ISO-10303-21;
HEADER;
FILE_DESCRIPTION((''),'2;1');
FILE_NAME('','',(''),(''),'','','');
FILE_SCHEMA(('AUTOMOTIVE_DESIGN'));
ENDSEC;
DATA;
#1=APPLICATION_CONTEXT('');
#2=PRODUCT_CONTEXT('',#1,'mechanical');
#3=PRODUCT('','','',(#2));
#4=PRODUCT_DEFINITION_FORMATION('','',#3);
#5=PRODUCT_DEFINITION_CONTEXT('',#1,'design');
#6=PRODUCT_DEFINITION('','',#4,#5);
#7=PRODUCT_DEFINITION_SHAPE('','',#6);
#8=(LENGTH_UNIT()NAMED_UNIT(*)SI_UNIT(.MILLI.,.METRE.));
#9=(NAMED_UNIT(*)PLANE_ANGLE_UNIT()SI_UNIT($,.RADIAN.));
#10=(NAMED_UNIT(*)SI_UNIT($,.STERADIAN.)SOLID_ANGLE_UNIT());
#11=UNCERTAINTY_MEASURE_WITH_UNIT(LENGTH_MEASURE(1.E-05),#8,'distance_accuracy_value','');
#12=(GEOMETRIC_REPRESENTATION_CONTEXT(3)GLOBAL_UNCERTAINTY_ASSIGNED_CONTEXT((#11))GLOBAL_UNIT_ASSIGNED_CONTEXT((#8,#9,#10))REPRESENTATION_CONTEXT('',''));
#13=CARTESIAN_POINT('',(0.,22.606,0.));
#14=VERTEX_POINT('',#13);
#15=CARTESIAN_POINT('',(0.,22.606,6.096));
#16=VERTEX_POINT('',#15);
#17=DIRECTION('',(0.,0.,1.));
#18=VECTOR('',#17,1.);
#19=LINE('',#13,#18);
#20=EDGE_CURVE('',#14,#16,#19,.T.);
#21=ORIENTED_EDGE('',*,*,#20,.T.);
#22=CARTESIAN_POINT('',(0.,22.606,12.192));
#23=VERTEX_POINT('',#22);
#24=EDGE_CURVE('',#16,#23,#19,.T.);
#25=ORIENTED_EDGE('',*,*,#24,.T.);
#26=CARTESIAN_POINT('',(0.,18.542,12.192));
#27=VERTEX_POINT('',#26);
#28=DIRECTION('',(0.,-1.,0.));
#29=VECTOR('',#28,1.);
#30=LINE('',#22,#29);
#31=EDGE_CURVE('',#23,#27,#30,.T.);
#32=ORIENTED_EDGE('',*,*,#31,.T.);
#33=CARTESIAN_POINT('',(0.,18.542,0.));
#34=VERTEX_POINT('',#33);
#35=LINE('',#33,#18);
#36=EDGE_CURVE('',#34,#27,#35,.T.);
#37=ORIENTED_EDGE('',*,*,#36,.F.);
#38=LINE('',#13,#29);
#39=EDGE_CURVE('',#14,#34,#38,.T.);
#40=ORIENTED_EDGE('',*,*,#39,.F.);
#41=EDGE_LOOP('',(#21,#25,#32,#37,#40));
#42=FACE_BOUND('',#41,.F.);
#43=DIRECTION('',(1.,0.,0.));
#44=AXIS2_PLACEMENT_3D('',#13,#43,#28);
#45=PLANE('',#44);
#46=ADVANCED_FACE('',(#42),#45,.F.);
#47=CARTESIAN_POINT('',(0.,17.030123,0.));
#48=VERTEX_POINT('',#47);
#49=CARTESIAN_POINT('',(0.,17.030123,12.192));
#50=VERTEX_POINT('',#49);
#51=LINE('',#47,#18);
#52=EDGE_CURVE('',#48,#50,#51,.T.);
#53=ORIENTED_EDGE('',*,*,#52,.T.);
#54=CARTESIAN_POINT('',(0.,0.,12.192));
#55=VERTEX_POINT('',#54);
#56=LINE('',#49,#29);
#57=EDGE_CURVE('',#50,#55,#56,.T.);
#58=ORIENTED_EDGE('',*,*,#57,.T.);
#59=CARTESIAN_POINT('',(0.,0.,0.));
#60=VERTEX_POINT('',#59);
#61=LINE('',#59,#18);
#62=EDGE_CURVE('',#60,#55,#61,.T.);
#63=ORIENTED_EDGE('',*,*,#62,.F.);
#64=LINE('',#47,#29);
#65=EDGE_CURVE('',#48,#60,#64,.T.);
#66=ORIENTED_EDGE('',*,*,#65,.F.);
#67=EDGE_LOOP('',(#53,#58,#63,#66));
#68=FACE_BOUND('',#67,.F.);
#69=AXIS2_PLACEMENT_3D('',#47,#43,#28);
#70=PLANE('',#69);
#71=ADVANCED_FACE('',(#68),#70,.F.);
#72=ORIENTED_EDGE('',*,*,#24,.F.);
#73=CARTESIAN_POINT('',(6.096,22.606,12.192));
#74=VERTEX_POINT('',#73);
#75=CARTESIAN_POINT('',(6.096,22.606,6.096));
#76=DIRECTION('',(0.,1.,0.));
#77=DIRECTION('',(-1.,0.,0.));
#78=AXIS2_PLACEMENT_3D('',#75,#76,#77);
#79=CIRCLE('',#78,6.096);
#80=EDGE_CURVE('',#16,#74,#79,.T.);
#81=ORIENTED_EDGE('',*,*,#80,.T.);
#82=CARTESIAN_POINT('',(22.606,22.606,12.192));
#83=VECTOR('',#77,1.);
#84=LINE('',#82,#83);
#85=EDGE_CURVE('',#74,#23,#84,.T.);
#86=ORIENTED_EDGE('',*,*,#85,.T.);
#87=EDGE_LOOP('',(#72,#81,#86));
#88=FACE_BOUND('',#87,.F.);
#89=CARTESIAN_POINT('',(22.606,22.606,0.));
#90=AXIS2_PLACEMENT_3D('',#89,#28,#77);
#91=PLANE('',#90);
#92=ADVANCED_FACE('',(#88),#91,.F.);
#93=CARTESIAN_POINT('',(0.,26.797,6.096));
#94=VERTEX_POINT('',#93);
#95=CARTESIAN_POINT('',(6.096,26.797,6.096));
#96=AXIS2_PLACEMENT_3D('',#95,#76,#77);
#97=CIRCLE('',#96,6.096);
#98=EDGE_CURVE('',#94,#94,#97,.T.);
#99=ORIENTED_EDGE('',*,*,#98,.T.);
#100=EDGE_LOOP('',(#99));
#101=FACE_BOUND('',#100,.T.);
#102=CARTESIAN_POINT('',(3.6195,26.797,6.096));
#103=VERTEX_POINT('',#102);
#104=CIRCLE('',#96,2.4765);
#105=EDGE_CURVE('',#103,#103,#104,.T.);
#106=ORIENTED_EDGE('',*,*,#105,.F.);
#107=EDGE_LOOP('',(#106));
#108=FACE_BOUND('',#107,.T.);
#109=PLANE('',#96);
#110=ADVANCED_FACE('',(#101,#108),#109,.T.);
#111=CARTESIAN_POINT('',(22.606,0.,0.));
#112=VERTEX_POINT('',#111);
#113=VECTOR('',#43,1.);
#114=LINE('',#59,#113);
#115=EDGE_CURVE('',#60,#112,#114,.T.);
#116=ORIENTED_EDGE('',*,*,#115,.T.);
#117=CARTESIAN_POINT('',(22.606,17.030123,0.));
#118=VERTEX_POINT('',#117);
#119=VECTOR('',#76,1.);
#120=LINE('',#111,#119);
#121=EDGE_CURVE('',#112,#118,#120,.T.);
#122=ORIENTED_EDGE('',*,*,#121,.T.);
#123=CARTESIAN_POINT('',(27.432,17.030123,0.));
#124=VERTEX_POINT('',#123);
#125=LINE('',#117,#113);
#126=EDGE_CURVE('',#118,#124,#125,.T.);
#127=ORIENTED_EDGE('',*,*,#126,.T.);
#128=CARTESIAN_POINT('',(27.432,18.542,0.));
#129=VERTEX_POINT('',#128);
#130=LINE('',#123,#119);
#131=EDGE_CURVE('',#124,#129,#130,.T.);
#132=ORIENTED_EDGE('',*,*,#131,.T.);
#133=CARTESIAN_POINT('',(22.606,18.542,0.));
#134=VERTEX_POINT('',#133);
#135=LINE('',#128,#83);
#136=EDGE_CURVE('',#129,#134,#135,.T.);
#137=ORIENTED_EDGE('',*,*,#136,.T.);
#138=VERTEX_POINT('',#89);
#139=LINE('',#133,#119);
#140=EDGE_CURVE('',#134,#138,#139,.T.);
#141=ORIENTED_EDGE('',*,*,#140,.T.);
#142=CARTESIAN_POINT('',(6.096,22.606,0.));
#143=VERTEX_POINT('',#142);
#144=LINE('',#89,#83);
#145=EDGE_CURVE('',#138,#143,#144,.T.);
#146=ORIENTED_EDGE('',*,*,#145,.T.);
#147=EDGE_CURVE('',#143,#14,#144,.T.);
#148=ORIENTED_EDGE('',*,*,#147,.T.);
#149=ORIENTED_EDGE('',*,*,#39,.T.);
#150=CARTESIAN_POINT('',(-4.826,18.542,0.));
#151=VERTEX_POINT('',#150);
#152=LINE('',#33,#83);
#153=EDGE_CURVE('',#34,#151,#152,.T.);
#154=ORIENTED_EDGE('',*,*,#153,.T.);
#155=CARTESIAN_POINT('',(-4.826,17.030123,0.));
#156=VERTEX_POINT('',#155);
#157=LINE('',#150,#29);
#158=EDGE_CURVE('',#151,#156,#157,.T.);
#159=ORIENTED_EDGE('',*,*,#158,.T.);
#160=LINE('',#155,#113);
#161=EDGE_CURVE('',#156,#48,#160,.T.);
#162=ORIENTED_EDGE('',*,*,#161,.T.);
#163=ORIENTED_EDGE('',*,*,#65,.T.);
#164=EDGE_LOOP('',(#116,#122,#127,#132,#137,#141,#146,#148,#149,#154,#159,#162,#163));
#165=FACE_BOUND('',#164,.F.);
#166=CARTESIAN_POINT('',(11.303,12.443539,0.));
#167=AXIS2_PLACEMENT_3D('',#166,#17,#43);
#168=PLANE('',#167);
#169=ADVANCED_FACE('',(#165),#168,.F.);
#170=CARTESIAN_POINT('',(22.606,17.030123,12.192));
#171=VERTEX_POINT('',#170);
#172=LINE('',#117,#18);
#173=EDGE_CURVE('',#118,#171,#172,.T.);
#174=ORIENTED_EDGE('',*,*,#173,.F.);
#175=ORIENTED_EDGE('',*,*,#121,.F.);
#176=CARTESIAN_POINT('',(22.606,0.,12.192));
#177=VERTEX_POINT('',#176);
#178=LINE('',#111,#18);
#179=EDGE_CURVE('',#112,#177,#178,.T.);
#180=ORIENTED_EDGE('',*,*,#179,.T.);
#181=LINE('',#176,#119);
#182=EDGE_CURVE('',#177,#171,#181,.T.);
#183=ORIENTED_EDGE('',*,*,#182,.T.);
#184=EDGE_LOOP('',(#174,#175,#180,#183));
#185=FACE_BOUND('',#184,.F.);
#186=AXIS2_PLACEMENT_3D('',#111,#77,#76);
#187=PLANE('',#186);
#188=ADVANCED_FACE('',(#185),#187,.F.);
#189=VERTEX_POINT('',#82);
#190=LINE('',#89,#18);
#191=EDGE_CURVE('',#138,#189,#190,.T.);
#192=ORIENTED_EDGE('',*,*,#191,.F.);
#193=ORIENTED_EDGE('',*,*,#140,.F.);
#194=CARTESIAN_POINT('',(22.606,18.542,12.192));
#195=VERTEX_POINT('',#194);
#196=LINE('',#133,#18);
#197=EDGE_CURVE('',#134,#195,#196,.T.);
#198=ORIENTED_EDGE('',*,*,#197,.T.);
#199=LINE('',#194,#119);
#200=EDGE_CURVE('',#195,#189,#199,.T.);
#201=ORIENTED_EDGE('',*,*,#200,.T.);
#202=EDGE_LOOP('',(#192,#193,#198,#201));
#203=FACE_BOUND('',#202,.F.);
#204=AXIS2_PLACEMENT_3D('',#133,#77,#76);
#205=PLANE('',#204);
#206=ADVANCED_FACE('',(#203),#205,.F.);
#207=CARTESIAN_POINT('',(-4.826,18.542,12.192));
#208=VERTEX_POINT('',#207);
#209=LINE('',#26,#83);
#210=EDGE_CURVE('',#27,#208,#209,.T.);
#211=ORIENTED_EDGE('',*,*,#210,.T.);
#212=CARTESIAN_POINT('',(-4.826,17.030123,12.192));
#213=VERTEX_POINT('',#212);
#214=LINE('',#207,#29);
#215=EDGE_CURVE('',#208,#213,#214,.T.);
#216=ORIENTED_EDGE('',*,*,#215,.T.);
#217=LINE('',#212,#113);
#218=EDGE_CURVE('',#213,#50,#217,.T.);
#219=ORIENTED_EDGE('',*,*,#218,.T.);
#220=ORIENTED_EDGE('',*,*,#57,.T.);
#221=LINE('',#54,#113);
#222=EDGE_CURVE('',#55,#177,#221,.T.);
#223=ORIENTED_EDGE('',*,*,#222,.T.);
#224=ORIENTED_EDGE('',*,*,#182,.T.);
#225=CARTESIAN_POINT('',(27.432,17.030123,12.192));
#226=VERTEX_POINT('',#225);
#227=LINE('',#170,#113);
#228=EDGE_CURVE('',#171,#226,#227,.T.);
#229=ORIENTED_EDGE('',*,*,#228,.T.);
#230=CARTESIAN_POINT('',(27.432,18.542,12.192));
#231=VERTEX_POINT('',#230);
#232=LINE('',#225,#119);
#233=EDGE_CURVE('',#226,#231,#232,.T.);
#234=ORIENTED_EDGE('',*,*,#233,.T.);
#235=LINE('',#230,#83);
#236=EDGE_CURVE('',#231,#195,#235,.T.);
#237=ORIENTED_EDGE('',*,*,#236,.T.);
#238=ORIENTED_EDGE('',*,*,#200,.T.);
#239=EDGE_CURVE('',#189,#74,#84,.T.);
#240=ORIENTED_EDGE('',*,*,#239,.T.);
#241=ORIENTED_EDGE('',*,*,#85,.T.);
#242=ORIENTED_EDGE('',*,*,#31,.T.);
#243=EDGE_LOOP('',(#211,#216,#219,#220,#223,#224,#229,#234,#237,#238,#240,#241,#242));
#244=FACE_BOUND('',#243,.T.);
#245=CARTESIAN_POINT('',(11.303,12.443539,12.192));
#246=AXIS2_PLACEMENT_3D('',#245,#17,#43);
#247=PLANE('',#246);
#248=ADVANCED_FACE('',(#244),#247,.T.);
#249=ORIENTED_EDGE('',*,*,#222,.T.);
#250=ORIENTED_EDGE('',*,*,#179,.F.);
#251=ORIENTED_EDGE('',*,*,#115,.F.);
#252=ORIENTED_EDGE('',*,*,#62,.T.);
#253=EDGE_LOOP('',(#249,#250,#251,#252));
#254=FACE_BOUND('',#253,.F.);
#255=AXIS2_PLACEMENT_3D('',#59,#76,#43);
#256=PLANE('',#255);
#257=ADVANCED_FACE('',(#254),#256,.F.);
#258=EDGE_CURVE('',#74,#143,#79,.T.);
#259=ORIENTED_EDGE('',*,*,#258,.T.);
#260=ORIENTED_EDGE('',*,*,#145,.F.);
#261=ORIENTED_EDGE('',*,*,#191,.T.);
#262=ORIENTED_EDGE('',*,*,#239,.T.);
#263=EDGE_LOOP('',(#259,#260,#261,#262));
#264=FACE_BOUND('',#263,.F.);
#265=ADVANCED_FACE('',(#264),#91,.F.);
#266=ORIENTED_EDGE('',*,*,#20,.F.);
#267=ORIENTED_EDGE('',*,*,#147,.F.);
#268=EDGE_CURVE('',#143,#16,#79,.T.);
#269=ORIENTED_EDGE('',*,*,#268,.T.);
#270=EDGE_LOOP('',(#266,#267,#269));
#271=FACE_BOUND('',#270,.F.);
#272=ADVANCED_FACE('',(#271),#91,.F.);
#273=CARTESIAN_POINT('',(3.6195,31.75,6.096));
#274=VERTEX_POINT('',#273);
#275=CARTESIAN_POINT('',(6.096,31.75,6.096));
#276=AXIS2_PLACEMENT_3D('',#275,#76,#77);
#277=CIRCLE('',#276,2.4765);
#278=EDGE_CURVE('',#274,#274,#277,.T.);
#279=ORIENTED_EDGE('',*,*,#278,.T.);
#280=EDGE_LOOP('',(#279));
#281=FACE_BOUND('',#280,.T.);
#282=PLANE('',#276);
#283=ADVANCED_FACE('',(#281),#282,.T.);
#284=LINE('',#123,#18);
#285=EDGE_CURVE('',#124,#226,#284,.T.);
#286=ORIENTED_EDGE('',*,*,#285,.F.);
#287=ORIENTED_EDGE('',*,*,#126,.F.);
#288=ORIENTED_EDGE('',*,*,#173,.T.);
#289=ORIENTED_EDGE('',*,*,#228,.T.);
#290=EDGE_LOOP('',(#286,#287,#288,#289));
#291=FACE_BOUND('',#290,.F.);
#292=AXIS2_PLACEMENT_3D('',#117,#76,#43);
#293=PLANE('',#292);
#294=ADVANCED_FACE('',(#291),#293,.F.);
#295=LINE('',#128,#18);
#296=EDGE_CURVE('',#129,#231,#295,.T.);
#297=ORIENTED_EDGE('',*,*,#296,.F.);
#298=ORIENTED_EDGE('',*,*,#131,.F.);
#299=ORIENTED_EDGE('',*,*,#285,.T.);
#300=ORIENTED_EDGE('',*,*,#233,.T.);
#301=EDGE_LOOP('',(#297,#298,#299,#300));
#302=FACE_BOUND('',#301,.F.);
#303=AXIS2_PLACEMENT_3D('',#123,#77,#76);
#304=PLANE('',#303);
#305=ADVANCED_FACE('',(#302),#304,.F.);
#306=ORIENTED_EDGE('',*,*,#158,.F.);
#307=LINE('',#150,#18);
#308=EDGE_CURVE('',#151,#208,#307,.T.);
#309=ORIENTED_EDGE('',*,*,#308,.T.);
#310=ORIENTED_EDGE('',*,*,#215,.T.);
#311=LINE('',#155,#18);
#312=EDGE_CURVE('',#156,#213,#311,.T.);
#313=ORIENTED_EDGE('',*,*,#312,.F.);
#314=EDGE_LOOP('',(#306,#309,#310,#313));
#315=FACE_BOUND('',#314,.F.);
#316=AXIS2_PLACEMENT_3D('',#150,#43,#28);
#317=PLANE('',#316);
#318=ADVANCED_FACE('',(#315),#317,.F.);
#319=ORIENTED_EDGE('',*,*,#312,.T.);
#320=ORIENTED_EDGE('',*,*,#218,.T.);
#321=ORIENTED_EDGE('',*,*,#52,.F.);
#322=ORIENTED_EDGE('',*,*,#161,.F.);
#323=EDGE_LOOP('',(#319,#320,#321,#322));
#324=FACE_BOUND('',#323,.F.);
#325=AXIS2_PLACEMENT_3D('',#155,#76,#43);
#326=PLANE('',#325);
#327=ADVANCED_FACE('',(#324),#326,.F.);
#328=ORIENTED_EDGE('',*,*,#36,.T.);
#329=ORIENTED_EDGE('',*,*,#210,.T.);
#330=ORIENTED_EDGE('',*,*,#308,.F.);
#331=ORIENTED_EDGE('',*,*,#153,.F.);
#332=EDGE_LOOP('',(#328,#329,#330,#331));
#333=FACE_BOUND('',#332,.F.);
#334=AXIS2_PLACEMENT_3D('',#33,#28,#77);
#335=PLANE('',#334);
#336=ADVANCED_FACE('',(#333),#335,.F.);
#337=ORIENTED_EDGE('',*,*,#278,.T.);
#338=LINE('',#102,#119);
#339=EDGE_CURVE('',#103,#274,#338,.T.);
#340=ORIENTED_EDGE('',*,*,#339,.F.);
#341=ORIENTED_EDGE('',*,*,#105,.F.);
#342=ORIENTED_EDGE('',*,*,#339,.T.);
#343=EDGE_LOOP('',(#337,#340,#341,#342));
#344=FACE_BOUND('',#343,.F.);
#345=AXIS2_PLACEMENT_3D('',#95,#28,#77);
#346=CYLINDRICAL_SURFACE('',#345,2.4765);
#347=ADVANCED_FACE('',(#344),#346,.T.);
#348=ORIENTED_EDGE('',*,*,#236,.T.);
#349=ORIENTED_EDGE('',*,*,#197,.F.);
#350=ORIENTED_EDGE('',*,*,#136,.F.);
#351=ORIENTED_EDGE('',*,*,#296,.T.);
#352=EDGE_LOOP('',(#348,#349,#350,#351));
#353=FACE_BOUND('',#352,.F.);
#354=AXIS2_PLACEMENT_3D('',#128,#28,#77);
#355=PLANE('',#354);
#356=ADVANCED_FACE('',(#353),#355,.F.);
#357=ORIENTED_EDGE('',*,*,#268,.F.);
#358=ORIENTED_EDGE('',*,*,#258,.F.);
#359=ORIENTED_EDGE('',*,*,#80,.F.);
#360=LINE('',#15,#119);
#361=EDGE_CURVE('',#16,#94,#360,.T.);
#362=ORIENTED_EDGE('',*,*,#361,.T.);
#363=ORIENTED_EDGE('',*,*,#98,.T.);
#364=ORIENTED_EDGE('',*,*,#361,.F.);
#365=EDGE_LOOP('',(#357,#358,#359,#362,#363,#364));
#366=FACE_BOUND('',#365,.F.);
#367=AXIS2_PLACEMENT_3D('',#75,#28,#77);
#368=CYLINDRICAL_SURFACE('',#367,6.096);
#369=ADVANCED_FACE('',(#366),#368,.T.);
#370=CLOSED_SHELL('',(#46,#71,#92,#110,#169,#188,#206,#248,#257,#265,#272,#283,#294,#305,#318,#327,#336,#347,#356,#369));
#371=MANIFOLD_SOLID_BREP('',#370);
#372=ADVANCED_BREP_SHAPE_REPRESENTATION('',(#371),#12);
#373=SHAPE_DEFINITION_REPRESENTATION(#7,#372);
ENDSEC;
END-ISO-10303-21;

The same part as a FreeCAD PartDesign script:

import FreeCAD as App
import Part
import Sketcher

V = App.Vector
Q = App.Units.Quantity

doc = App.newDocument("Part")
body = doc.addObject("PartDesign::Body", "Body")

sketch1 = doc.addObject("Sketcher::SketchObject", "Sketch")
body.addObject(sketch1)
sketch1.AttachmentSupport = (doc.XY_Plane, [""])
sketch1.MapMode = "FlatFace"
sketch1.addGeometry(Part.LineSegment(V(0, 17, 0), V(0, 0, 0)), False)
sketch1.addGeometry(Part.LineSegment(V(0, 0, 0), V(22.6, 0, 0)), False)
sketch1.addGeometry(Part.LineSegment(V(22.6, 0, 0), V(22.6, 17, 0)), False)
sketch1.addGeometry(Part.LineSegment(V(22.6, 17, 0), V(27.4, 17, 0)), False)
sketch1.addGeometry(Part.LineSegment(V(27.4, 17, 0), V(27.4, 18.5, 0)), False)
sketch1.addGeometry(Part.LineSegment(V(27.4, 18.5, 0), V(22.6, 18.5, 0)), False)
sketch1.addGeometry(Part.LineSegment(V(22.6, 18.5, 0), V(22.6, 22.6, 0)), False)
sketch1.addGeometry(Part.LineSegment(V(22.6, 22.6, 0), V(0, 22.6, 0)), False)
sketch1.addGeometry(Part.LineSegment(V(0, 22.6, 0), V(0, 18.5, 0)), False)
sketch1.addGeometry(Part.LineSegment(V(0, 18.5, 0), V(-4.8, 18.5, 0)), False)
sketch1.addGeometry(Part.LineSegment(V(-4.8, 18.5, 0), V(-4.8, 17, 0)), False)
sketch1.addGeometry(Part.LineSegment(V(-4.8, 17, 0), V(0, 17, 0)), False)
sketch1.addConstraint(Sketcher.Constraint("Coincident", 0, 2, 1, 1))
sketch1.addConstraint(Sketcher.Constraint("Coincident", 1, 2, 2, 1))
sketch1.addConstraint(Sketcher.Constraint("Coincident", 2, 2, 3, 1))
sketch1.addConstraint(Sketcher.Constraint("Coincident", 3, 2, 4, 1))
sketch1.addConstraint(Sketcher.Constraint("Coincident", 4, 2, 5, 1))
sketch1.addConstraint(Sketcher.Constraint("Coincident", 5, 2, 6, 1))
sketch1.addConstraint(Sketcher.Constraint("Coincident", 6, 2, 7, 1))
sketch1.addConstraint(Sketcher.Constraint("Coincident", 7, 2, 8, 1))
sketch1.addConstraint(Sketcher.Constraint("Coincident", 8, 2, 9, 1))
sketch1.addConstraint(Sketcher.Constraint("Coincident", 9, 2, 10, 1))
sketch1.addConstraint(Sketcher.Constraint("Coincident", 10, 2, 11, 1))
sketch1.addConstraint(Sketcher.Constraint("Coincident", 11, 2, 0, 1))
sketch1.addConstraint(Sketcher.Constraint("Vertical", 0))
sketch1.addConstraint(Sketcher.Constraint("Horizontal", 1))
sketch1.addConstraint(Sketcher.Constraint("Vertical", 2))
sketch1.addConstraint(Sketcher.Constraint("Horizontal", 3))
sketch1.addConstraint(Sketcher.Constraint("Vertical", 4))
sketch1.addConstraint(Sketcher.Constraint("Horizontal", 5))
sketch1.addConstraint(Sketcher.Constraint("Vertical", 6))
sketch1.addConstraint(Sketcher.Constraint("Horizontal", 7))
sketch1.addConstraint(Sketcher.Constraint("Vertical", 8))
sketch1.addConstraint(Sketcher.Constraint("Horizontal", 9))
sketch1.addConstraint(Sketcher.Constraint("Vertical", 10))
sketch1.addConstraint(Sketcher.Constraint("Horizontal", 11))
sketch1.addConstraint(Sketcher.Constraint("Coincident", 0, 2, -1, 1))
sketch1.addConstraint(Sketcher.Constraint("PointOnObject", 7, 2, -2))
sketch1.addConstraint(Sketcher.Constraint("Horizontal", 5, 2, 8, 2))
sketch1.addConstraint(Sketcher.Constraint("Horizontal", 3, 2, 10, 2))
sketch1.addConstraint(Sketcher.Constraint("Vertical", 2, 2, 5, 2))
sketch1.addConstraint(Sketcher.Constraint("Equal", 5, 9))
sketch1.addConstraint(Sketcher.Constraint("DistanceX", 1, 1, 1, 2, Q("0.89 in")))
sketch1.addConstraint(Sketcher.Constraint("DistanceX", 3, 1, 3, 2, Q("0.19 in")))
sketch1.addConstraint(Sketcher.Constraint("DistanceY", 6, 1, 6, 2, Q("0.16 in")))
sketch1.addConstraint(Sketcher.Constraint("DistanceY", -1, 1, 4, 2, Q("0.73 in")))
sketch1.addConstraint(Sketcher.Constraint("DistanceY", 0, 2, 0, 1, 17.030123))
pad1 = doc.addObject("PartDesign::Pad", "Pad")
body.addObject(pad1)
pad1.Profile = sketch1
pad1.Length = Q("0.48 in")

sketch2 = doc.addObject("Sketcher::SketchObject", "Sketch001")
body.addObject(sketch2)
sketch2.AttachmentSupport = (doc.XZ_Plane, [""])
sketch2.MapMode = "FlatFace"
sketch2.AttachmentOffset = App.Placement(V(0, 0, -0.89 * 25.4), App.Rotation())
sketch2.addGeometry(Part.Circle(V(6, 6, 0), V(0, 0, 1), 6), False)
sketch2.addConstraint(Sketcher.Constraint("Diameter", 0, Q("0.48 in")))
sketch2.addConstraint(Sketcher.Constraint("DistanceX", -1, 1, 0, 3, Q("0.24 in")))
sketch2.addConstraint(Sketcher.Constraint("DistanceY", -1, 1, 0, 3, Q("0.24 in")))
pad2 = doc.addObject("PartDesign::Pad", "Pad001")
body.addObject(pad2)
pad2.Profile = sketch2
pad2.Length = Q("0.165 in")
pad2.Reversed = True

sketch3 = doc.addObject("Sketcher::SketchObject", "Sketch002")
body.addObject(sketch3)
sketch3.AttachmentSupport = (doc.XZ_Plane, [""])
sketch3.MapMode = "FlatFace"
sketch3.AttachmentOffset = App.Placement(V(0, 0, -1.055 * 25.4), App.Rotation())
sketch3.addGeometry(Part.Circle(V(6.1, 6.1, 0), V(0, 0, 1), 2.5), False)
sketch3.addConstraint(Sketcher.Constraint("Diameter", 0, Q("0.195 in")))
sketch3.addConstraint(Sketcher.Constraint("DistanceX", -1, 1, 0, 3, Q("0.24 in")))
sketch3.addConstraint(Sketcher.Constraint("DistanceY", -1, 1, 0, 3, Q("0.24 in")))
pad3 = doc.addObject("PartDesign::Pad", "Pad002")
body.addObject(pad3)
pad3.Profile = sketch3
pad3.Length = Q("0.195 in")
pad3.Reversed = True

doc.recompute()
